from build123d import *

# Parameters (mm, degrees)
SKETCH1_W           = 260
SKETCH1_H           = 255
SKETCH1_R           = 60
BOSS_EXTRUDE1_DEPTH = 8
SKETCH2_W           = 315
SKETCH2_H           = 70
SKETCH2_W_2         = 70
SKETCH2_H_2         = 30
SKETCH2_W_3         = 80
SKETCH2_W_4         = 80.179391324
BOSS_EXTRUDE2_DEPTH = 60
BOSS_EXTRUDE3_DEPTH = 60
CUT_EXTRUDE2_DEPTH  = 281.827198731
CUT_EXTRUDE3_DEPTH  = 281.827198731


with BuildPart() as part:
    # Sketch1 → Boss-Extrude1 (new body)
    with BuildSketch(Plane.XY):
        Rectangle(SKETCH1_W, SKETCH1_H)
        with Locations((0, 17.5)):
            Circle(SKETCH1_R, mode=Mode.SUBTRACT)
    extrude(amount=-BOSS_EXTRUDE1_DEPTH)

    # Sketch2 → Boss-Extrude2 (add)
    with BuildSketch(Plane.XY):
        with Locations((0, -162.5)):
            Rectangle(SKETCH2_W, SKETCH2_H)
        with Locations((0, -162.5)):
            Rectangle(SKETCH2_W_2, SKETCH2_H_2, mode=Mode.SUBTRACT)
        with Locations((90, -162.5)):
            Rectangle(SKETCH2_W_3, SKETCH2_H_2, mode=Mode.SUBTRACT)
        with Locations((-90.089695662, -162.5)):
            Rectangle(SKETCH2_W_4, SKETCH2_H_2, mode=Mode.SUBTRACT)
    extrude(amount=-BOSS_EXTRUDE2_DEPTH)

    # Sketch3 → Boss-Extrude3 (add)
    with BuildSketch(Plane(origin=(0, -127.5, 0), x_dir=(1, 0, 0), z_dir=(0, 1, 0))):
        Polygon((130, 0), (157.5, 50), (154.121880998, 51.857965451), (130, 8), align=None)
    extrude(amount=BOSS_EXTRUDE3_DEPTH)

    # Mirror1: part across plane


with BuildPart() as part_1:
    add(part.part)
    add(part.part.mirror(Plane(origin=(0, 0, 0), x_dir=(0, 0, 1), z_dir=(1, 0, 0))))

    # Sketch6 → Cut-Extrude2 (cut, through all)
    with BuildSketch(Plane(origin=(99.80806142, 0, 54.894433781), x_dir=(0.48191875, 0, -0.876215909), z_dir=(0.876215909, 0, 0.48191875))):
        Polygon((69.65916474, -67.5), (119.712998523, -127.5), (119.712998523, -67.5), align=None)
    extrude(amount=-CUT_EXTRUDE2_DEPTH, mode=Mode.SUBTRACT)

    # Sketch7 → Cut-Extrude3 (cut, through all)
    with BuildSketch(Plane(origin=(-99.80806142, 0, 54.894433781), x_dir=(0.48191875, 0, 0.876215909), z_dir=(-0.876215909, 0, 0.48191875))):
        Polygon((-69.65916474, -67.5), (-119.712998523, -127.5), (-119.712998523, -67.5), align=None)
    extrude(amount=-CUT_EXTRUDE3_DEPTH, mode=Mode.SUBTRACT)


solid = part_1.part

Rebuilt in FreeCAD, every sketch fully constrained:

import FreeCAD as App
import Part
import Sketcher

V = App.Vector

doc = App.newDocument("Part")
body = doc.addObject("PartDesign::Body", "Body")

sketch1 = doc.addObject("Sketcher::SketchObject", "Sketch")
body.addObject(sketch1)
sketch1.AttachmentSupport = (doc.XY_Plane, [""])
sketch1.MapMode = "FlatFace"
sketch1.addGeometry([
    Part.LineSegment(V(-130, 128, 0), V(-130, -128, 0)),
    Part.LineSegment(V(-130, -128, 0), V(130, -128, 0)),
    Part.LineSegment(V(130, -128, 0), V(130, 128, 0)),
    Part.LineSegment(V(130, 128, 0), V(-130, 128, 0)),
    Part.Circle(V(0, 18, 0), V(0, 0, 1), 60),
], False)
sketch1.addConstraint([
    Sketcher.Constraint("Coincident", 0, 2, 1, 1),
    Sketcher.Constraint("Coincident", 1, 2, 2, 1),
    Sketcher.Constraint("Coincident", 2, 2, 3, 1),
    Sketcher.Constraint("Coincident", 3, 2, 0, 1),
    Sketcher.Constraint("Vertical", 0),
    Sketcher.Constraint("Horizontal", 1),
    Sketcher.Constraint("Vertical", 2),
    Sketcher.Constraint("Horizontal", 3),
    Sketcher.Constraint("Symmetric", 0, 2, 2, 2, -1, 1),
    Sketcher.Constraint("PointOnObject", 4, 3, -2),
    Sketcher.Constraint("Diameter", 4, 120.0),
    Sketcher.Constraint("DistanceX", 1, 1, 1, 2, 260.0),
    Sketcher.Constraint("DistanceY", 0, 2, 0, 1, 255.0),
    Sketcher.Constraint("DistanceY", 0, 2, 4, 3, 145.0),
])
pad1 = doc.addObject("PartDesign::Pad", "Pad")
body.addObject(pad1)
pad1.Profile = sketch1
pad1.Length = 8
pad1.Reversed = True

sketch2 = doc.addObject("Sketcher::SketchObject", "Sketch001")
body.addObject(sketch2)
sketch2.AttachmentSupport = (doc.XY_Plane, [""])
sketch2.MapMode = "FlatFace"
sketch2.addGeometry([
    Part.LineSegment(V(-158, -128, 0), V(-158, -198, 0)),
    Part.LineSegment(V(-158, -198, 0), V(158, -198, 0)),
    Part.LineSegment(V(158, -198, 0), V(158, -128, 0)),
    Part.LineSegment(V(158, -128, 0), V(-158, -128, 0)),
    Part.LineSegment(V(-50, -178, 0), V(-130, -178, 0)),
    Part.LineSegment(V(-130, -178, 0), V(-130, -148, 0)),
    Part.LineSegment(V(-130, -148, 0), V(-50, -148, 0)),
    Part.LineSegment(V(-50, -148, 0), V(-50, -178, 0)),
    Part.LineSegment(V(35, -178, 0), V(-35, -178, 0)),
    Part.LineSegment(V(-35, -178, 0), V(-35, -148, 0)),
    Part.LineSegment(V(-35, -148, 0), V(35, -148, 0)),
    Part.LineSegment(V(35, -148, 0), V(35, -178, 0)),
    Part.LineSegment(V(130, -178, 0), V(50, -178, 0)),
    Part.LineSegment(V(50, -178, 0), V(50, -148, 0)),
    Part.LineSegment(V(50, -148, 0), V(130, -148, 0)),
    Part.LineSegment(V(130, -148, 0), V(130, -178, 0)),
], False)
sketch2.addConstraint([
    Sketcher.Constraint("Coincident", 0, 2, 1, 1),
    Sketcher.Constraint("Coincident", 1, 2, 2, 1),
    Sketcher.Constraint("Coincident", 2, 2, 3, 1),
    Sketcher.Constraint("Coincident", 3, 2, 0, 1),
    Sketcher.Constraint("Coincident", 4, 2, 5, 1),
    Sketcher.Constraint("Coincident", 5, 2, 6, 1),
    Sketcher.Constraint("Coincident", 6, 2, 7, 1),
    Sketcher.Constraint("Coincident", 7, 2, 4, 1),
    Sketcher.Constraint("Coincident", 8, 2, 9, 1),
    Sketcher.Constraint("Coincident", 9, 2, 10, 1),
    Sketcher.Constraint("Coincident", 10, 2, 11, 1),
    Sketcher.Constraint("Coincident", 11, 2, 8, 1),
    Sketcher.Constraint("Coincident", 12, 2, 13, 1),
    Sketcher.Constraint("Coincident", 13, 2, 14, 1),
    Sketcher.Constraint("Coincident", 14, 2, 15, 1),
    Sketcher.Constraint("Coincident", 15, 2, 12, 1),
    Sketcher.Constraint("Vertical", 0),
    Sketcher.Constraint("Horizontal", 1),
    Sketcher.Constraint("Vertical", 2),
    Sketcher.Constraint("Horizontal", 3),
    Sketcher.Constraint("Horizontal", 4),
    Sketcher.Constraint("Vertical", 5),
    Sketcher.Constraint("Horizontal", 6),
    Sketcher.Constraint("Vertical", 7),
    Sketcher.Constraint("Horizontal", 8),
    Sketcher.Constraint("Vertical", 9),
    Sketcher.Constraint("Horizontal", 10),
    Sketcher.Constraint("Vertical", 11),
    Sketcher.Constraint("Horizontal", 12),
    Sketcher.Constraint("Vertical", 13),
    Sketcher.Constraint("Horizontal", 14),
    Sketcher.Constraint("Vertical", 15),
    Sketcher.Constraint("Symmetric", 7, 2, 12, 2, -2),
    Sketcher.Constraint("Horizontal", 7, 2, 8, 2),
    Sketcher.Constraint("Horizontal", 6, 2, 9, 2),
    Sketcher.Constraint("Horizontal", 10, 2, 13, 2),
    Sketcher.Constraint("Equal", 10, 0),
    Sketcher.Constraint("DistanceX", 1, 1, 1, 2, 315.0),
    Sketcher.Constraint("DistanceX", 8, 2, 8, 1, 70.0),
    Sketcher.Constraint("DistanceX", 12, 2, 12, 1, 80.0),
    Sketcher.Constraint("DistanceY", 5, 1, 5, 2, 30.0),
    Sketcher.Constraint("DistanceX", 6, 2, -1, 1, 50.0),
    Sketcher.Constraint("DistanceX", 8, 2, -1, 1, 35.0),
    Sketcher.Constraint("DistanceY", 0, 2, 4, 2, 20.0),
    Sketcher.Constraint("DistanceX", 0, 2, -1, 1, 157.5),
    Sketcher.Constraint("DistanceY", 0, 2, -1, 1, 197.5),
    Sketcher.Constraint("DistanceX", 4, 2, 4, 1, 80.179391),
])
pad2 = doc.addObject("PartDesign::Pad", "Pad001")
body.addObject(pad2)
pad2.Profile = sketch2
pad2.Length = 60
pad2.Reversed = True

sketch3 = doc.addObject("Sketcher::SketchObject", "Sketch002")
body.addObject(sketch3)
sketch3.AttachmentSupport = (doc.XZ_Plane, [""])
sketch3.MapMode = "FlatFace"
sketch3.AttachmentOffset = App.Placement(V(0, 0, 127.5), App.Rotation())
sketch3.addGeometry([
    Part.LineSegment(V(130, 0, 0), V(157.5, -50, 0)),
    Part.LineSegment(V(157.5, -50, 0), V(154.1, -51.9, 0)),
    Part.LineSegment(V(154.1, -51.9, 0), V(130, -8, 0)),
    Part.LineSegment(V(130, -8, 0), V(130, 0, 0)),
], False)
sketch3.addConstraint([
    Sketcher.Constraint("Coincident", 0, 2, 1, 1),
    Sketcher.Constraint("Coincident", 1, 2, 2, 1),
    Sketcher.Constraint("Coincident", 2, 2, 3, 1),
    Sketcher.Constraint("Coincident", 3, 2, 0, 1),
    Sketcher.Constraint("Vertical", 3),
    Sketcher.Constraint("PointOnObject", 3, 2, -1),
    Sketcher.Constraint("Perpendicular", 0, 1),
    Sketcher.Constraint("Perpendicular", 1, 2),
    Sketcher.Constraint("DistanceY", 3, 1, 3, 2, 8.0),
    Sketcher.Constraint("DistanceY", 0, 2, -1, 1, 50.0),
    Sketcher.Constraint("DistanceX", -1, 1, 2, 2, 130.0),
    Sketcher.Constraint("DistanceX", -1, 1, 0, 2, 157.5),
])
pad3 = doc.addObject("PartDesign::Pad", "Pad002")
body.addObject(pad3)
pad3.Profile = sketch3
pad3.Length = 60
pad3.Reversed = True
body2 = doc.addObject("PartDesign::Body", "Body001")
doc.recompute()

body2.BaseFeature = body
doc.recompute()

mirroring = doc.addObject("Part::Mirroring", "Mirroring")
mirroring.Source = body
mirroring.Base = V(0, 0, 0)
mirroring.Normal = V(1, 0, 0)
body3 = doc.addObject("PartDesign::Body", "Body002")
body3.BaseFeature = mirroring
boolean = doc.addObject("PartDesign::Boolean", "Boolean")
body2.addObject(boolean)
boolean.Type = "Fuse"
boolean.addObjects([body3])
doc.recompute()

sketch4 = doc.addObject("Sketcher::SketchObject", "Sketch003")
body2.addObject(sketch4)
sketch4.Placement = App.Placement(V(99.808061, 0, 54.894434), App.Rotation(V(0.48191875, 0, -0.876215909), V(0, 1.000000001, 0), V(0.876215909, 0, 0.48191875), "ZXY"))
sketch4.addGeometry([
    Part.LineSegment(V(70, -68, 0), V(120, -128, 0)),
    Part.LineSegment(V(120, -128, 0), V(120, -68, 0)),
    Part.LineSegment(V(120, -68, 0), V(70, -68, 0)),
], False)
sketch4.addConstraint([
    Sketcher.Constraint("Coincident", 0, 2, 1, 1),
    Sketcher.Constraint("Coincident", 1, 2, 2, 1),
    Sketcher.Constraint("Coincident", 2, 2, 0, 1),
    Sketcher.Constraint("Vertical", 1),
    Sketcher.Constraint("Horizontal", 2),
    Sketcher.Constraint("DistanceY", 1, 1, 1, 2, 60.0),
    Sketcher.Constraint("DistanceY", 0, 2, -1, 1, 127.5),
    Sketcher.Constraint("DistanceX", -1, 1, 0, 2, 119.712999),
    Sketcher.Constraint("Distance", 0, 78.136971),
])
pocket1 = doc.addObject("PartDesign::Pocket", "Pocket")
body2.addObject(pocket1)
pocket1.Profile = sketch4
pocket1.Type = "ThroughAll"

sketch5 = doc.addObject("Sketcher::SketchObject", "Sketch004")
body2.addObject(sketch5)
sketch5.Placement = App.Placement(V(-99.808061, 0, 54.894434), App.Rotation(V(0.48191875, 0, 0.876215909), V(0, 1.000000001, 0), V(-0.876215909, 0, 0.48191875), "ZXY"))
sketch5.addGeometry([
    Part.LineSegment(V(-120, -128, 0), V(-70, -68, 0)),
    Part.LineSegment(V(-70, -68, 0), V(-120, -68, 0)),
    Part.LineSegment(V(-120, -68, 0), V(-120, -128, 0)),
], False)
sketch5.addConstraint([
    Sketcher.Constraint("Coincident", 0, 2, 1, 1),
    Sketcher.Constraint("Coincident", 1, 2, 2, 1),
    Sketcher.Constraint("Coincident", 2, 2, 0, 1),
    Sketcher.Constraint("Horizontal", 1),
    Sketcher.Constraint("Vertical", 2),
    Sketcher.Constraint("DistanceY", 2, 2, 2, 1, 60.0),
    Sketcher.Constraint("DistanceY", 0, 2, -1, 1, 67.5),
    Sketcher.Constraint("DistanceX", 1, 2, -1, 1, 119.712999),
    Sketcher.Constraint("Distance", 0, 78.136971),
])
pocket2 = doc.addObject("PartDesign::Pocket", "Pocket001")
body2.addObject(pocket2)
pocket2.Profile = sketch5
pocket2.Type = "ThroughAll"
mirroring.Visibility = False

doc.recompute()
